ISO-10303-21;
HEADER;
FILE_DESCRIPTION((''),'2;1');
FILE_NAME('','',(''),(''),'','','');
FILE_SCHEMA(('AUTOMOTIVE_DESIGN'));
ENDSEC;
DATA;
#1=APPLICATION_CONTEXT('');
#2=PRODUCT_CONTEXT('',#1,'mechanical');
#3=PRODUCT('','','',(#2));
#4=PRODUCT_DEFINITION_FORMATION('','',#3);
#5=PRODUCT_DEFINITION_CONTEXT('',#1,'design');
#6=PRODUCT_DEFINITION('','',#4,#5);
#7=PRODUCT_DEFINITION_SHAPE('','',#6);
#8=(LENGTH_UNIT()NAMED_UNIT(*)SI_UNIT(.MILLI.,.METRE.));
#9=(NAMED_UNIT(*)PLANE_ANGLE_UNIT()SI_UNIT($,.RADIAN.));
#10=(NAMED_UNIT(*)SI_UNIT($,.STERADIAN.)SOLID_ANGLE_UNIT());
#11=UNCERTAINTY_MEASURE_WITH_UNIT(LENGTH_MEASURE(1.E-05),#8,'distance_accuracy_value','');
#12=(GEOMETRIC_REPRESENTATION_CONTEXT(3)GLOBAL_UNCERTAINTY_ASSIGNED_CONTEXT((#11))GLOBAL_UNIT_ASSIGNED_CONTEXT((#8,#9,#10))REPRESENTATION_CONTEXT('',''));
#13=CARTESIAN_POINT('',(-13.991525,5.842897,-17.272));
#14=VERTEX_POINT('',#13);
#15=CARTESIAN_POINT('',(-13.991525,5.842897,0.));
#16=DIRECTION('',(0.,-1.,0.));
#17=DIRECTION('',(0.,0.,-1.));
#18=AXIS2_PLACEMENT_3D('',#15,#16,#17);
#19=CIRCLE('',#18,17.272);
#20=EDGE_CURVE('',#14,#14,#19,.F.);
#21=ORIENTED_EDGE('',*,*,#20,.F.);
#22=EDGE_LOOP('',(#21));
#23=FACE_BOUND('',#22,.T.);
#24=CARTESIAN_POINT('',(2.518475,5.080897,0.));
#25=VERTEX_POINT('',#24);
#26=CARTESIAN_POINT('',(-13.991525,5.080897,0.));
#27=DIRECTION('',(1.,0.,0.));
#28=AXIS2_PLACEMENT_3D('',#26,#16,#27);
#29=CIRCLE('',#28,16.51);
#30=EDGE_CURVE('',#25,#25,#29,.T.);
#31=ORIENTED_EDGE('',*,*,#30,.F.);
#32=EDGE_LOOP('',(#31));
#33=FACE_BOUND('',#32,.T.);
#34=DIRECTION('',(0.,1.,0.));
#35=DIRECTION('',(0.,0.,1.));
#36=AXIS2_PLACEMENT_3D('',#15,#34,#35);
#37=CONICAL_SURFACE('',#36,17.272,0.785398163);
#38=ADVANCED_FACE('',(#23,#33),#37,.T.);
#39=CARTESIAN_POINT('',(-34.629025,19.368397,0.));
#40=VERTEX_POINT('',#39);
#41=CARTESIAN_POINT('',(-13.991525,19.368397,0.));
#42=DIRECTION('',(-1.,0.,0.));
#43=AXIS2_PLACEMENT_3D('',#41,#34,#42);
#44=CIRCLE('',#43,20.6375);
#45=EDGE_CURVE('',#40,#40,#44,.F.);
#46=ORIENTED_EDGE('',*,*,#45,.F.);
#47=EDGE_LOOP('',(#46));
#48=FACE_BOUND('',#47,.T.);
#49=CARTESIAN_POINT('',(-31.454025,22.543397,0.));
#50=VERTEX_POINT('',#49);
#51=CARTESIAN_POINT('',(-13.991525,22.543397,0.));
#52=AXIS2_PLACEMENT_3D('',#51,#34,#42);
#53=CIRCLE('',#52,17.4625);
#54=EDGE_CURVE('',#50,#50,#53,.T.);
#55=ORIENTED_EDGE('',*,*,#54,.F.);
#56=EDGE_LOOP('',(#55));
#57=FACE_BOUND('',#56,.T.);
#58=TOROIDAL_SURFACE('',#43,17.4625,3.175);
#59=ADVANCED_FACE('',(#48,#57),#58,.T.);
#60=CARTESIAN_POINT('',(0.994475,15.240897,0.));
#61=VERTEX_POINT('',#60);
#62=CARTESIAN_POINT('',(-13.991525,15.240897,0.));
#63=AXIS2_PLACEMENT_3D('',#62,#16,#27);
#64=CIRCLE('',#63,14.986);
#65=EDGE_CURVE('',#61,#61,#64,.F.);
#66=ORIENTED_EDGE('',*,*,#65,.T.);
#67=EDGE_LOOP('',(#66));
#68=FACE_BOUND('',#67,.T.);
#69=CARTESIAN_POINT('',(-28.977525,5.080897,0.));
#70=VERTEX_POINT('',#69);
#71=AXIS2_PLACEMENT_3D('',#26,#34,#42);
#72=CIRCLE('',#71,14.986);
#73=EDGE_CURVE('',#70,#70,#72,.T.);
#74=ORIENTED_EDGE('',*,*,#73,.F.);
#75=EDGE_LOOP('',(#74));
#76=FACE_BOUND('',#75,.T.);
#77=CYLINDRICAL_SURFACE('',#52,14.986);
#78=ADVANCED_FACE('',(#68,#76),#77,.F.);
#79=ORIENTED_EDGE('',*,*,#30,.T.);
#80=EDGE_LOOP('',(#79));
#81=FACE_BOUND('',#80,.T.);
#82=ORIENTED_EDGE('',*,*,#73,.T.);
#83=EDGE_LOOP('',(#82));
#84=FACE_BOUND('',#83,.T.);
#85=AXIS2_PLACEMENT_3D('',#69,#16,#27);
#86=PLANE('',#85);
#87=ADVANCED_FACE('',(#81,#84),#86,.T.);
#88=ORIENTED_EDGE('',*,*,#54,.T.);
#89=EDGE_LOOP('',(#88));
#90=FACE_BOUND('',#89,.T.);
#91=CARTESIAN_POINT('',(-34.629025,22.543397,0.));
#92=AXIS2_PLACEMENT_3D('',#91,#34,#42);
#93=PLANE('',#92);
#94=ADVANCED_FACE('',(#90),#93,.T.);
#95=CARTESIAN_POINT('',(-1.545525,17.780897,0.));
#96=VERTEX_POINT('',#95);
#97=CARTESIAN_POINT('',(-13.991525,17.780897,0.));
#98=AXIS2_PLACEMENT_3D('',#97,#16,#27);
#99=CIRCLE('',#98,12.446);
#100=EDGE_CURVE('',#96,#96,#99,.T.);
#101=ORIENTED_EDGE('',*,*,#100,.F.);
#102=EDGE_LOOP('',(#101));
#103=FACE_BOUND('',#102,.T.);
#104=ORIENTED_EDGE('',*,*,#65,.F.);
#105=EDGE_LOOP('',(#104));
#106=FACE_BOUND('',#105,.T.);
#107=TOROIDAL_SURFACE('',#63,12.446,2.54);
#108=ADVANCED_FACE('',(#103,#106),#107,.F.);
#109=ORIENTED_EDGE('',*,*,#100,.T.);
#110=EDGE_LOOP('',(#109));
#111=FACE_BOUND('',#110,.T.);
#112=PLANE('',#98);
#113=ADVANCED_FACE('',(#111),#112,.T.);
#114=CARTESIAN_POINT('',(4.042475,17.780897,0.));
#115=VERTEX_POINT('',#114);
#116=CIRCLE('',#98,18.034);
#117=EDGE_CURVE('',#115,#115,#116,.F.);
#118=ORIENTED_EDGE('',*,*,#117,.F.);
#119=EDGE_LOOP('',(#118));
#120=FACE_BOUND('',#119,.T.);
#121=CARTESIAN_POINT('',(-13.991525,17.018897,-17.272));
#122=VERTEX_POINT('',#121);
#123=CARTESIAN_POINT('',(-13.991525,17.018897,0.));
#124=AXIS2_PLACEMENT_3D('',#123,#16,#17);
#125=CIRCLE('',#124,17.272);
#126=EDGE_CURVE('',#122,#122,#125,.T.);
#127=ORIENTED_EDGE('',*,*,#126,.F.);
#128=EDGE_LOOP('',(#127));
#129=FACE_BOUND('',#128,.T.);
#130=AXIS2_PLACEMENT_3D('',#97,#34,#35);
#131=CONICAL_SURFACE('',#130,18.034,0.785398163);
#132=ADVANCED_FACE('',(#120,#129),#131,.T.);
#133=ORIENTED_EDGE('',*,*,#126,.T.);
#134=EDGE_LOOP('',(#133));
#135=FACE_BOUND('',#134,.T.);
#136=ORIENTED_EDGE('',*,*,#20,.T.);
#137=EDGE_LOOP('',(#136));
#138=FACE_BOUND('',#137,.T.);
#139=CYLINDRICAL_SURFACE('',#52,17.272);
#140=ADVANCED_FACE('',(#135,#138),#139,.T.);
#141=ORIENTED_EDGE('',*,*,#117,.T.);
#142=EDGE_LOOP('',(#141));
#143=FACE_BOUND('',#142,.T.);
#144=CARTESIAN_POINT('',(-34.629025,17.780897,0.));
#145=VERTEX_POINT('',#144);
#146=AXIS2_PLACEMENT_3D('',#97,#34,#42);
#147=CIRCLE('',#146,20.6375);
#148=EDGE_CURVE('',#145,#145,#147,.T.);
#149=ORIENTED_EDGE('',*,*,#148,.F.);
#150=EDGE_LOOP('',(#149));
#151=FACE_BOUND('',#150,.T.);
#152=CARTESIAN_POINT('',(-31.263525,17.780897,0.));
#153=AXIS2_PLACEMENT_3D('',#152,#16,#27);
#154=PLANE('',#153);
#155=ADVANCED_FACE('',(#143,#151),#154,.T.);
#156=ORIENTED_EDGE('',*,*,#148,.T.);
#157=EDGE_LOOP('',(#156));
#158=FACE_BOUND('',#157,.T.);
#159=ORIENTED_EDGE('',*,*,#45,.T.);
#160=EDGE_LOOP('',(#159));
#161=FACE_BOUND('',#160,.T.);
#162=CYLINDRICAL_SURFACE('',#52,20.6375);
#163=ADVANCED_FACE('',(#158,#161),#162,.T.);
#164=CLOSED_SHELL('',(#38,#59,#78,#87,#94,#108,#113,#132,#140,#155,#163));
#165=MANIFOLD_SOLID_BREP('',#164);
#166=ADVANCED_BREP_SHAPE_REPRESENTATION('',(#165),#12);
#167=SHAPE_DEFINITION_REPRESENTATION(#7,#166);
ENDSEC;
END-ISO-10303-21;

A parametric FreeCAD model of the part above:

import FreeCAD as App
import Part
import Sketcher

V = App.Vector
Q = App.Units.Quantity


def edges_at(feature, points):
    """Names of the edges that pass closest to the given points."""
    edges = feature.Shape.Edges
    near = lambda p: min(range(len(edges)), key=lambda i: edges[i].distToShape(Part.Vertex(*p))[0])
    return sorted({f"Edge{near(p) + 1}" for p in points})

doc = App.newDocument("Part")
body = doc.addObject("PartDesign::Body", "Body")

# Sketch on XY plane
sketch1 = body.newObject("Sketcher::SketchObject", "Sketch")
sketch1.AttachmentSupport = (doc.getObject("XY_Plane"), [""])
sketch1.MapMode = "FlatFace"
sketch1.addGeometry(Part.LineSegment(V(-13.991525, 22.543397, 0), V(-34.629025, 22.543397, 0)), False)
sketch1.addGeometry(Part.LineSegment(V(-34.629025, 22.543397, 0), V(-34.629025, 17.780897, 0)), False)
sketch1.addGeometry(Part.LineSegment(V(-34.629025, 17.780897, 0), V(-31.263525, 17.780897, 0)), False)
sketch1.addGeometry(Part.LineSegment(V(-31.263525, 17.780897, 0), V(-31.263525, 5.080897, 0)), False)
sketch1.addGeometry(Part.LineSegment(V(-31.263525, 5.080897, 0), V(-28.977525, 5.080897, 0)), False)
sketch1.addGeometry(Part.LineSegment(V(-28.977525, 5.080897, 0), V(-28.977525, 17.780897, 0)), False)
sketch1.addGeometry(Part.LineSegment(V(-28.977525, 17.780897, 0), V(-13.991525, 17.780897, 0)), False)
sketch1.addGeometry(Part.LineSegment(V(-13.991525, 17.780897, 0), V(-13.991525, 22.543397, 0)), False)
sketch1.addGeometry(Part.LineSegment(V(-13.991525, 22.543397, 0), V(-13.991525, 5.080897, 0)), True)  # axis
sketch1.addConstraint(Sketcher.Constraint("Coincident", 0, 2, 1, 1))
sketch1.addConstraint(Sketcher.Constraint("Coincident", 1, 2, 2, 1))
sketch1.addConstraint(Sketcher.Constraint("Coincident", 2, 2, 3, 1))
sketch1.addConstraint(Sketcher.Constraint("Coincident", 3, 2, 4, 1))
sketch1.addConstraint(Sketcher.Constraint("Coincident", 4, 2, 5, 1))
sketch1.addConstraint(Sketcher.Constraint("Coincident", 5, 2, 6, 1))
sketch1.addConstraint(Sketcher.Constraint("Coincident", 6, 2, 7, 1))
sketch1.addConstraint(Sketcher.Constraint("Coincident", 7, 2, 0, 1))
sketch1.addConstraint(Sketcher.Constraint("Horizontal", 0))
sketch1.addConstraint(Sketcher.Constraint("Vertical", 1))
sketch1.addConstraint(Sketcher.Constraint("Horizontal", 2))
sketch1.addConstraint(Sketcher.Constraint("Vertical", 3))
sketch1.addConstraint(Sketcher.Constraint("Horizontal", 4))
sketch1.addConstraint(Sketcher.Constraint("Vertical", 5))
sketch1.addConstraint(Sketcher.Constraint("Horizontal", 6))
sketch1.addConstraint(Sketcher.Constraint("Vertical", 7))
sketch1.addConstraint(Sketcher.Constraint("Vertical", 8))
sketch1.addConstraint(Sketcher.Constraint("Coincident", 8, 1, 7, 2))
sketch1.addConstraint(Sketcher.Constraint("Horizontal", 2, 2, 5, 2))
sketch1.addConstraint(Sketcher.Constraint("Horizontal", 4, 2, 8, 2))
sketch1.addConstraint(Sketcher.Constraint("DistanceY", 3, 2, 3, 1, Q("0.5 in")))
sketch1.addConstraint(Sketcher.Constraint("DistanceX", 4, 1, 4, 2, Q("0.09 in")))
sketch1.addConstraint(Sketcher.Constraint("DistanceX", 6, 1, 6, 2, Q("0.59 in")))
sketch1.addConstraint(Sketcher.Constraint("DistanceX", 0, 2, 0, 1, Q("0.8125 in")))
sketch1.addConstraint(Sketcher.Constraint("DistanceY", 1, 2, 1, 1, Q("0.1875 in")))
sketch1.addConstraint(Sketcher.Constraint("DistanceX", 0, 2, -1, 1, Q("34.629025 mm")))
sketch1.addConstraint(Sketcher.Constraint("DistanceY", -1, 1, 0, 2, Q("22.543397 mm")))
revolution = body.newObject("PartDesign::Revolution", "Revolution")
revolution.Profile = sketch1
revolution.ReferenceAxis = (sketch1, ["Axis0"])
revolution.Angle = 360
doc.recompute()

fillet = body.newObject("PartDesign::Fillet", "Fillet")
fillet.Base = (revolution, edges_at(revolution, [(6.646, 22.543, 0)]))
fillet.Radius = Q("0.125 in")
doc.recompute()

chamfer = body.newObject("PartDesign::Chamfer", "Chamfer")
chamfer.Base = (fillet, edges_at(fillet, [(3.28, 17.781, 0), (3.28, 5.081, 0)]))
chamfer.Size = Q("0.03 in")
doc.recompute()

fillet2 = body.newObject("PartDesign::Fillet", "Fillet001")
fillet2.Base = (chamfer, edges_at(chamfer, [(0.994, 17.781, 0)]))
fillet2.Radius = Q("0.1 in")

doc.recompute()
